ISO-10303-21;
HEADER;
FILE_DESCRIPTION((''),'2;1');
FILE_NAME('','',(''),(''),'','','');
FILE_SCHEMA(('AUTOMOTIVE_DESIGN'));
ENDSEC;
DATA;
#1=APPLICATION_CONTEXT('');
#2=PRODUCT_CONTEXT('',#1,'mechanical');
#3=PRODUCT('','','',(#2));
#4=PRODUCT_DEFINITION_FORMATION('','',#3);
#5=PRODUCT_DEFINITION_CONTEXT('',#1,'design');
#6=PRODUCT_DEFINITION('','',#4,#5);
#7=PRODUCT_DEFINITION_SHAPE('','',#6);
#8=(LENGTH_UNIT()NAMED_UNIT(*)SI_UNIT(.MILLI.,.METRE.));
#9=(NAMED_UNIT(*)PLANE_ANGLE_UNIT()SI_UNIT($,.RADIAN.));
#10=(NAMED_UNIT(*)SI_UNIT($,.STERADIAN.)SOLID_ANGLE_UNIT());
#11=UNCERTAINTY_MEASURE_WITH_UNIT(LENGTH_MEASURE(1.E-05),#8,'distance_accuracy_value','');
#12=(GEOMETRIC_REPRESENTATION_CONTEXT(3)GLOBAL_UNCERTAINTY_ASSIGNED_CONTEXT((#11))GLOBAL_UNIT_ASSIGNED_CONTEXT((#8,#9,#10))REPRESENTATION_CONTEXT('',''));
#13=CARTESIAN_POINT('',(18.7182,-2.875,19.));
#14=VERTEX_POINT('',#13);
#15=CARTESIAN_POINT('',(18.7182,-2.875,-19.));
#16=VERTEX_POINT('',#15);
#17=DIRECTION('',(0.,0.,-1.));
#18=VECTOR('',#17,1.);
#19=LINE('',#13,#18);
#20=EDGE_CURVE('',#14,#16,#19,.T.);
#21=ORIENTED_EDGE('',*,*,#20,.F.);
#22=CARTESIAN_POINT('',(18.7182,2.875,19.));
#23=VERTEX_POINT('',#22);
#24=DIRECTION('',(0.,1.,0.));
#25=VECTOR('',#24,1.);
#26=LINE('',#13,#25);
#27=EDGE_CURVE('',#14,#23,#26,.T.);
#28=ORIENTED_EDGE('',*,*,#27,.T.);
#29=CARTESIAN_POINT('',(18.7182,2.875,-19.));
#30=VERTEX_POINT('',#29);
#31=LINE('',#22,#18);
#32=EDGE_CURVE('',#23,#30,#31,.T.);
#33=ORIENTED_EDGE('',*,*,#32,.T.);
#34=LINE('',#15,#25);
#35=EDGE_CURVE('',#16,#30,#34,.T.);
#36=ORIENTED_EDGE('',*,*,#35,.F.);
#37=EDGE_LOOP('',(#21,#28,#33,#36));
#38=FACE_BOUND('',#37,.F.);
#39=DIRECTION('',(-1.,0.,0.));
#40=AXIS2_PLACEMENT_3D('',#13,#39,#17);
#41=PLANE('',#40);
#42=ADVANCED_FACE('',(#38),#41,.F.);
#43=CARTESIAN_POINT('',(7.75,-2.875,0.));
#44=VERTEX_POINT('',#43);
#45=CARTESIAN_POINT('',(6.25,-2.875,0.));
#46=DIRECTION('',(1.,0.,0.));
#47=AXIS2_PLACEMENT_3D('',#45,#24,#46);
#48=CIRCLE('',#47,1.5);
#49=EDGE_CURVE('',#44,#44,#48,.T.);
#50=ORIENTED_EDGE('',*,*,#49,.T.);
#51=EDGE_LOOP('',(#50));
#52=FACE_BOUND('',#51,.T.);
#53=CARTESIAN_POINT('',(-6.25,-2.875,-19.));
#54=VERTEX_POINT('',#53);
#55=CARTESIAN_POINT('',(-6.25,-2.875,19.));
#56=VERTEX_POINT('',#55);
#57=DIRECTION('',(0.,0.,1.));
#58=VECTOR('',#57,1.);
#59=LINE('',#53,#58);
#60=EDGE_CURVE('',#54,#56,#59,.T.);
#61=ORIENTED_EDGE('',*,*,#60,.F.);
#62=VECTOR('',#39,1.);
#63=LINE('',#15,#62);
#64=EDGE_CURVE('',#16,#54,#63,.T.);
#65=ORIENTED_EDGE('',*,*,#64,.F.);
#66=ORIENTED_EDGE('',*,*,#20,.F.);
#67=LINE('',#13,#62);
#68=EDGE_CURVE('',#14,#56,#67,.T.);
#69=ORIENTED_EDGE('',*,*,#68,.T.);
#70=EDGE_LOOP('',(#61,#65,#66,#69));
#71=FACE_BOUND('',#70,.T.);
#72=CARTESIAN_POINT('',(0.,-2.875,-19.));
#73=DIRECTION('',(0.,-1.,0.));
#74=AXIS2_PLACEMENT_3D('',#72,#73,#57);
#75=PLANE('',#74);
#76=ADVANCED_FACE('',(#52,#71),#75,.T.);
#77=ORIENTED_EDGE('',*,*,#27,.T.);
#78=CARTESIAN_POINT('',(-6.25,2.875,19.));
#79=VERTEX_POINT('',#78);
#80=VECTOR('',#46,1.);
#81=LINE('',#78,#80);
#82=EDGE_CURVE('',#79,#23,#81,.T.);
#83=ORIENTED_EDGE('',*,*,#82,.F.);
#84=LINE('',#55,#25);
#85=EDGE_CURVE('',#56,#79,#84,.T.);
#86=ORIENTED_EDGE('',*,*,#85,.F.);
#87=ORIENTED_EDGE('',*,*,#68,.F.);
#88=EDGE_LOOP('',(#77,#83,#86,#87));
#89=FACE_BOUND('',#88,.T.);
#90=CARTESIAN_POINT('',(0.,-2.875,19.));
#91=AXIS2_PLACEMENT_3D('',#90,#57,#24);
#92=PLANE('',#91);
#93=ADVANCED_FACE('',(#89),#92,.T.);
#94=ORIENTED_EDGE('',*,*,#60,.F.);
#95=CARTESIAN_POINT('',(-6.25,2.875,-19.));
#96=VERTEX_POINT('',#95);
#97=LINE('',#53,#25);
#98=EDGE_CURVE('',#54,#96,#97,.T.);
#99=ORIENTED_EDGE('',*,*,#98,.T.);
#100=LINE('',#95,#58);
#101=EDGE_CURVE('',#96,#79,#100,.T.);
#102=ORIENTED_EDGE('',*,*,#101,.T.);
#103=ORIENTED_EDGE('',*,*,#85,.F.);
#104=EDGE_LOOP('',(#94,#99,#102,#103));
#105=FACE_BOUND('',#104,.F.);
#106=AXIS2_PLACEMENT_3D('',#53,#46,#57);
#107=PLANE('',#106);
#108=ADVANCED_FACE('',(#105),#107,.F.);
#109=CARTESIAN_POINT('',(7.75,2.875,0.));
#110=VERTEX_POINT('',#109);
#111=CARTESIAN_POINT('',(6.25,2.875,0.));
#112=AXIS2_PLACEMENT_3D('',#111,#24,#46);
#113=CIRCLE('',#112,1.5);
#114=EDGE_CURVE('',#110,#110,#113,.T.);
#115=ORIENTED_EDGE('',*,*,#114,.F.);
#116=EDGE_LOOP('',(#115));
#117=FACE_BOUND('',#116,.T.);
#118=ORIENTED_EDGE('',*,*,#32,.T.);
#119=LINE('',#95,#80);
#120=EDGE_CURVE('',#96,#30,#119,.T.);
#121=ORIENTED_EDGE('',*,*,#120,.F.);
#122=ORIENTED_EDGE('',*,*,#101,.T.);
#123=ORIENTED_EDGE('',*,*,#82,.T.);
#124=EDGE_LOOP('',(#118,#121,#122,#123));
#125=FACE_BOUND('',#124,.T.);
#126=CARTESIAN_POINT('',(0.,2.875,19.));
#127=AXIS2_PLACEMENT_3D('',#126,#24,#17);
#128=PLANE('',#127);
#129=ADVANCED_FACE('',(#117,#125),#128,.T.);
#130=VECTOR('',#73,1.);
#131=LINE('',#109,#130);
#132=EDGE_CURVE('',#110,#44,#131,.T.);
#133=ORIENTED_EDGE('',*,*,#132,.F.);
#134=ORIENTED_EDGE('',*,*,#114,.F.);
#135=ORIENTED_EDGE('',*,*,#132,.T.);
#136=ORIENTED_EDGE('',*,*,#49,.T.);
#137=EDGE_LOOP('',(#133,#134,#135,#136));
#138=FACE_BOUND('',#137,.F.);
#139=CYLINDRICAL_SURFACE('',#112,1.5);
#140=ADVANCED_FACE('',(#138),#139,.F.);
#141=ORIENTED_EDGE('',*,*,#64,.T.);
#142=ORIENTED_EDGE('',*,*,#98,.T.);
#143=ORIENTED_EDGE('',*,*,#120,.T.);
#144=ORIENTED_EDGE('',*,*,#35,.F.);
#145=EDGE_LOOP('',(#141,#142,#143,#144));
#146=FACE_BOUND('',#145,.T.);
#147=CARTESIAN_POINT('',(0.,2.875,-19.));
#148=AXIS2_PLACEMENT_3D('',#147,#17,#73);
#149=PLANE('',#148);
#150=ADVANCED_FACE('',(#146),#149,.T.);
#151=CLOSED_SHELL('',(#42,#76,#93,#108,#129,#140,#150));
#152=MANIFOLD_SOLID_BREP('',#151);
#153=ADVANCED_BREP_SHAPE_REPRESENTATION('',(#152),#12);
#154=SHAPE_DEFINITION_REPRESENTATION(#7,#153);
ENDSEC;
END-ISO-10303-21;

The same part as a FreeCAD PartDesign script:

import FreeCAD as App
import Part
import Sketcher
Q = App.Units.Quantity

doc = App.newDocument("Part")
body = doc.addObject("PartDesign::Body", "Body")

# Sketch on YZ plane
sketch1 = body.newObject("Sketcher::SketchObject", "Sketch")
sketch1.AttachmentSupport = (doc.getObject("YZ_Plane"), [""])
sketch1.MapMode = "FlatFace"
sketch1.addGeometry(Part.LineSegment(App.Vector(-2.875, -19, 0), App.Vector(2.875, -19, 0)), False)
sketch1.addGeometry(Part.LineSegment(App.Vector(2.875, -19, 0), App.Vector(2.875, 19, 0)), False)
sketch1.addGeometry(Part.LineSegment(App.Vector(2.875, 19, 0), App.Vector(-2.875, 19, 0)), False)
sketch1.addGeometry(Part.LineSegment(App.Vector(-2.875, 19, 0), App.Vector(-2.875, -19, 0)), False)
sketch1.addConstraint(Sketcher.Constraint("Coincident", 0, 2, 1, 1))
sketch1.addConstraint(Sketcher.Constraint("Coincident", 1, 2, 2, 1))
sketch1.addConstraint(Sketcher.Constraint("Coincident", 2, 2, 3, 1))
sketch1.addConstraint(Sketcher.Constraint("Coincident", 3, 2, 0, 1))
sketch1.addConstraint(Sketcher.Constraint("Horizontal", 0))
sketch1.addConstraint(Sketcher.Constraint("Vertical", 1))
sketch1.addConstraint(Sketcher.Constraint("Horizontal", 2))
sketch1.addConstraint(Sketcher.Constraint("Vertical", 3))
sketch1.addConstraint(Sketcher.Constraint("Symmetric", 0, 2, 2, 2, -1, 1))
sketch1.addConstraint(Sketcher.Constraint("DistanceY", 1, 1, 1, 2, Q("38 mm")))
sketch1.addConstraint(Sketcher.Constraint("DistanceX", 0, 1, 0, 2, Q("5.75 mm")))
pad1 = body.newObject("PartDesign::Pad", "Pad")
pad1.Profile = sketch1
pad1.Length = 12.5

# Sketch on XZ plane
sketch2 = body.newObject("Sketcher::SketchObject", "Sketch001")
sketch2.AttachmentSupport = (doc.getObject("XZ_Plane"), [""])
sketch2.MapMode = "FlatFace"
sketch2.AttachmentOffset = App.Placement(App.Vector(0, 0, -2.875), App.Rotation())
sketch2.addGeometry(Part.Circle(App.Vector(6.25, 0, 0), App.Vector(0, 0, 1), 1.5), False)
sketch2.addConstraint(Sketcher.Constraint("PointOnObject", 0, 3, -1))
sketch2.addConstraint(Sketcher.Constraint("Diameter", 0, Q("3 mm")))
sketch2.addConstraint(Sketcher.Constraint("DistanceX", -1, 1, 0, 3, Q("6.25 mm")))
pocket1 = body.newObject("PartDesign::Pocket", "Pocket")
pocket1.Profile = sketch2
pocket1.Length = 12.5
pocket1.Reversed = True

# Sketch on XZ plane
sketch3 = body.newObject("Sketcher::SketchObject", "Sketch002")
sketch3.AttachmentSupport = (doc.getObject("XZ_Plane"), [""])
sketch3.MapMode = "FlatFace"
sketch3.AttachmentOffset = App.Placement(App.Vector(0, 0, 2.875), App.Rotation())
sketch3.addGeometry(Part.LineSegment(App.Vector(-6.25, -19, 0), App.Vector(0, -19, 0)), False)
sketch3.addGeometry(Part.LineSegment(App.Vector(0, -19, 0), App.Vector(0, 19, 0)), False)
sketch3.addGeometry(Part.LineSegment(App.Vector(0, 19, 0), App.Vector(-6.25, 19, 0)), False)
sketch3.addGeometry(Part.LineSegment(App.Vector(-6.25, 19, 0), App.Vector(-6.25, -19, 0)), False)
sketch3.addGeometry(Part.LineSegment(App.Vector(18.7182, 19, 0), App.Vector(12.4682, 19, 0)), False)
sketch3.addGeometry(Part.LineSegment(App.Vector(12.4682, 19, 0), App.Vector(12.4682, -19, 0)), False)
sketch3.addGeometry(Part.LineSegment(App.Vector(12.4682, -19, 0), App.Vector(18.7182, -19, 0)), False)
sketch3.addGeometry(Part.LineSegment(App.Vector(18.7182, -19, 0), App.Vector(18.7182, 19, 0)), False)
sketch3.addConstraint(Sketcher.Constraint("Coincident", 0, 2, 1, 1))
sketch3.addConstraint(Sketcher.Constraint("Coincident", 1, 2, 2, 1))
sketch3.addConstraint(Sketcher.Constraint("Coincident", 2, 2, 3, 1))
sketch3.addConstraint(Sketcher.Constraint("Coincident", 3, 2, 0, 1))
sketch3.addConstraint(Sketcher.Constraint("Coincident", 4, 2, 5, 1))
sketch3.addConstraint(Sketcher.Constraint("Coincident", 5, 2, 6, 1))
sketch3.addConstraint(Sketcher.Constraint("Coincident", 6, 2, 7, 1))
sketch3.addConstraint(Sketcher.Constraint("Coincident", 7, 2, 4, 1))
sketch3.addConstraint(Sketcher.Constraint("Horizontal", 0))
sketch3.addConstraint(Sketcher.Constraint("Vertical", 1))
sketch3.addConstraint(Sketcher.Constraint("Horizontal", 2))
sketch3.addConstraint(Sketcher.Constraint("Vertical", 3))
sketch3.addConstraint(Sketcher.Constraint("Horizontal", 4))
sketch3.addConstraint(Sketcher.Constraint("Vertical", 5))
sketch3.addConstraint(Sketcher.Constraint("Horizontal", 6))
sketch3.addConstraint(Sketcher.Constraint("Vertical", 7))
sketch3.addConstraint(Sketcher.Constraint("Symmetric", 0, 2, 1, 2, -1, 1))
sketch3.addConstraint(Sketcher.Constraint("Horizontal", 2, 2, 4, 2))
sketch3.addConstraint(Sketcher.Constraint("Horizontal", 3, 2, 5, 2))
sketch3.addConstraint(Sketcher.Constraint("Equal", 2, 4))
sketch3.addConstraint(Sketcher.Constraint("DistanceX", 0, 1, 0, 2, Q("6.25 mm")))
sketch3.addConstraint(Sketcher.Constraint("DistanceY", 1, 1, 1, 2, Q("38 mm")))
sketch3.addConstraint(Sketcher.Constraint("DistanceX", -1, 1, 4, 2, Q("12.4682 mm")))
pad2 = body.newObject("PartDesign::Pad", "Pad001")
pad2.Profile = sketch3
pad2.Length = 5.75
pad2.Reversed = True

doc.recompute()
